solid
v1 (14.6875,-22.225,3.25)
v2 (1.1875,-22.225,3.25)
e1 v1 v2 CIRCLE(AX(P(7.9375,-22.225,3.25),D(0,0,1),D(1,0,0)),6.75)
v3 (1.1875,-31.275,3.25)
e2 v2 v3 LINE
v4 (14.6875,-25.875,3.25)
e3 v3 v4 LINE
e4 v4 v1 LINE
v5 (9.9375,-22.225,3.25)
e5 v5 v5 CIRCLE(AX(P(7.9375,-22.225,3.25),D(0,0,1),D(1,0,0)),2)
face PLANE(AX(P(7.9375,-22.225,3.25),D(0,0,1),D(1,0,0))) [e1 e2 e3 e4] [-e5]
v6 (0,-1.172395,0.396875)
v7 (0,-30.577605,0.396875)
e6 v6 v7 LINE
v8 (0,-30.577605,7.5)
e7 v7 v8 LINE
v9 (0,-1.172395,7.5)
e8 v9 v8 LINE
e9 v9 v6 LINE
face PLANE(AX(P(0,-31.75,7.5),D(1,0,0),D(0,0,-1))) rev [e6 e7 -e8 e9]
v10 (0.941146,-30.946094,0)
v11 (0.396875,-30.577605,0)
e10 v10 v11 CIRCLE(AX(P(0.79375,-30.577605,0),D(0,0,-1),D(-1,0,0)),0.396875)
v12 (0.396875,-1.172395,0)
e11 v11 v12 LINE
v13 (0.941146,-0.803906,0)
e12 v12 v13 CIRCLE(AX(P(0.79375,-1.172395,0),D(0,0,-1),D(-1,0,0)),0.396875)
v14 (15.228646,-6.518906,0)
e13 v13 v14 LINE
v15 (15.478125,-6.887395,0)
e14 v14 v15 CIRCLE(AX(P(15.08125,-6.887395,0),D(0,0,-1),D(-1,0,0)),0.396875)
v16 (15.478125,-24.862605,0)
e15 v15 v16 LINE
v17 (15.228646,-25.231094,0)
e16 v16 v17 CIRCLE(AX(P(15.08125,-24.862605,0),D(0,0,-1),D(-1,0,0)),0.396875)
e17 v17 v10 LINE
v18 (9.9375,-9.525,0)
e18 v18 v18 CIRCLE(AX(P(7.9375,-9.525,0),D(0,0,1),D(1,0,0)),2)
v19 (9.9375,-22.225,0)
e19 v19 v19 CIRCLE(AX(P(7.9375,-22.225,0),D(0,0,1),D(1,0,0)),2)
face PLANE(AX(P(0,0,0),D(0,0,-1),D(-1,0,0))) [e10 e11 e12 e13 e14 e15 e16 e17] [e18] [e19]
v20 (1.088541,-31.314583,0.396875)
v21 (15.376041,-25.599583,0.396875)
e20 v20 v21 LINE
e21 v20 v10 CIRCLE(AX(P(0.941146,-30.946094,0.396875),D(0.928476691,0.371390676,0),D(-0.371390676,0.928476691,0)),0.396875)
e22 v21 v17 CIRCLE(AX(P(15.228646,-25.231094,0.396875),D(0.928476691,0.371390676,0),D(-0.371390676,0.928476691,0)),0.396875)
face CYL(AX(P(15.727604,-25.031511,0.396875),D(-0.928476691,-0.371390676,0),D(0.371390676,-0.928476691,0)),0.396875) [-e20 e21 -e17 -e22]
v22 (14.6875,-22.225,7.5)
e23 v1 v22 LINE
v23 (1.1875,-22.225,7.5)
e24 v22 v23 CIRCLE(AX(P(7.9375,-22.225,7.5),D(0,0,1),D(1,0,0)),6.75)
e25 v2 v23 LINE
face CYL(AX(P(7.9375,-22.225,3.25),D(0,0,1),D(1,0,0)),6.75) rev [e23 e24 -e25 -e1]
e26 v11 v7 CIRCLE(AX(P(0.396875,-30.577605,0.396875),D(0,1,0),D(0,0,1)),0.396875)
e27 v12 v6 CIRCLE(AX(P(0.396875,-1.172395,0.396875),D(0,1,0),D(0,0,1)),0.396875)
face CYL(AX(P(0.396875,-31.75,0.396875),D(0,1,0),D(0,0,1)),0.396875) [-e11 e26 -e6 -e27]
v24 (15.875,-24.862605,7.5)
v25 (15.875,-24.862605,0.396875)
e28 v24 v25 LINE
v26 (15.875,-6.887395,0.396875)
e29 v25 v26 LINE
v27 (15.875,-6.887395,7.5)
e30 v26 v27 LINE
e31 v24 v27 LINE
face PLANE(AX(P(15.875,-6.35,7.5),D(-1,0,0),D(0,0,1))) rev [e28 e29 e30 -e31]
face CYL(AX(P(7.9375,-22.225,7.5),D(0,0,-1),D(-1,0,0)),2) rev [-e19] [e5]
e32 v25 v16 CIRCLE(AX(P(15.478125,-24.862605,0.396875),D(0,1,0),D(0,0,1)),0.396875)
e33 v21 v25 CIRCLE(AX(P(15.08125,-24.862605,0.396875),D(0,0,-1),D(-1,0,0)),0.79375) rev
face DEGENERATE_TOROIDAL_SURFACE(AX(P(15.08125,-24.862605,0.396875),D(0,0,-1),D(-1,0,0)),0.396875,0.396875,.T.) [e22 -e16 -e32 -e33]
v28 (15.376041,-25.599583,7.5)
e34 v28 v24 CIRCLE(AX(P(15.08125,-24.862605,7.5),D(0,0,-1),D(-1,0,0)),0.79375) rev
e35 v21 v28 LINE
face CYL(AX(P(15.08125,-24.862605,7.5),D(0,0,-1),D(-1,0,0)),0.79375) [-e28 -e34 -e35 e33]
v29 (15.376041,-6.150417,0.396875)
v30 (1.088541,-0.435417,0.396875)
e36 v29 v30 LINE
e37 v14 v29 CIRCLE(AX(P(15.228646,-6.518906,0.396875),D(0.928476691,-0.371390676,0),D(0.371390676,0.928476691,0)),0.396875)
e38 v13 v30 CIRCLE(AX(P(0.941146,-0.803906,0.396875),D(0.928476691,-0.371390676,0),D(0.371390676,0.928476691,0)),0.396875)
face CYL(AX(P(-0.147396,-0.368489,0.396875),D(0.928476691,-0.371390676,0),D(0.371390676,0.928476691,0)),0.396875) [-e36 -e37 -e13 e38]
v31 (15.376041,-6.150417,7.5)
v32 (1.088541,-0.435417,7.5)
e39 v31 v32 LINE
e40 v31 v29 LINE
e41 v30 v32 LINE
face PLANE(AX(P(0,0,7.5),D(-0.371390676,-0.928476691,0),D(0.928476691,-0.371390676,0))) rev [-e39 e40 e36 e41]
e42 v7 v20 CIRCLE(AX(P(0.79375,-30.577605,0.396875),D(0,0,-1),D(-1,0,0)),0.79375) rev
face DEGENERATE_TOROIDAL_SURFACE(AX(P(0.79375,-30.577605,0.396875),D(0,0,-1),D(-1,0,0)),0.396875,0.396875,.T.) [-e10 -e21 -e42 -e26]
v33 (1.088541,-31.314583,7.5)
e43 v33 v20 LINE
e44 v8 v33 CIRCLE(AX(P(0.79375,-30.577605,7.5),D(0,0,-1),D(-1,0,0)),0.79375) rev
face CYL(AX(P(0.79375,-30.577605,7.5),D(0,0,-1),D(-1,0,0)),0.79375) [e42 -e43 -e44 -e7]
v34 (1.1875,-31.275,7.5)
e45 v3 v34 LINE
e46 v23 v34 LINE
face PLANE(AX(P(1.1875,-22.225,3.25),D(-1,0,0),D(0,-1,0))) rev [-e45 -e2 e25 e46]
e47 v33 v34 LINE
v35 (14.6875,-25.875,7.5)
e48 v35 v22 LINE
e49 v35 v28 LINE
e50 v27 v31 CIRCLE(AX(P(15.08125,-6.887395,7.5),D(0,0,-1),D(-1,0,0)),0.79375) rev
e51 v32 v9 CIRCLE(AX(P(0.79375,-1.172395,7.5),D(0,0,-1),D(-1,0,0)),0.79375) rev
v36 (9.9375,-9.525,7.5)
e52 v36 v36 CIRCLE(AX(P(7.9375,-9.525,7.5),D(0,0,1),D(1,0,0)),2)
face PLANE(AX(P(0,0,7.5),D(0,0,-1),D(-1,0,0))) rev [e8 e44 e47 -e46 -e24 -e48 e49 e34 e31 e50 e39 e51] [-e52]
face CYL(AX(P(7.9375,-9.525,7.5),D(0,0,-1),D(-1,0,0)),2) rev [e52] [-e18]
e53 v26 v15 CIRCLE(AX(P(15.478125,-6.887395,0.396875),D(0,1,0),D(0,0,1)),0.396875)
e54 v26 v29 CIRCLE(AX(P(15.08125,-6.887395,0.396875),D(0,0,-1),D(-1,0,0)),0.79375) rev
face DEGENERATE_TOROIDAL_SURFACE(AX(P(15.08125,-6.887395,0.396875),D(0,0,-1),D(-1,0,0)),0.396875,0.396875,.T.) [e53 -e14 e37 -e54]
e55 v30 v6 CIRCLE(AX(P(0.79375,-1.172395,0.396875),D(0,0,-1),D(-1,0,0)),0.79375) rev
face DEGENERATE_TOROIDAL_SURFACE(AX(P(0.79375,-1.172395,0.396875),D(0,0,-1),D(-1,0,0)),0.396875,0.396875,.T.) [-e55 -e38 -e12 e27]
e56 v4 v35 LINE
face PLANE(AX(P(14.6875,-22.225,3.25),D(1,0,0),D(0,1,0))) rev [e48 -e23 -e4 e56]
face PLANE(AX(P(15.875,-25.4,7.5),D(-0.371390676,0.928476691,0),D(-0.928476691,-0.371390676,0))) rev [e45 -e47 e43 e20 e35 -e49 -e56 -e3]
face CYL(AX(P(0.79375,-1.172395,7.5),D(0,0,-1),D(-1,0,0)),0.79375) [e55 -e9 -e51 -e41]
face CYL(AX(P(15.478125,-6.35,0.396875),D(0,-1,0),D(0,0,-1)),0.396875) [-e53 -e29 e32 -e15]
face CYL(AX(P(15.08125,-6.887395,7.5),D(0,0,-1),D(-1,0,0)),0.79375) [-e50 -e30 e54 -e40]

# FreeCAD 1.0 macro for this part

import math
import FreeCAD as App
import Part
import Sketcher

V = App.Vector
Q = App.Units.Quantity


def edges_at(feature, points):
    """Names of the edges that pass closest to the given points."""
    edges = feature.Shape.Edges
    near = lambda p: min(range(len(edges)), key=lambda i: edges[i].distToShape(Part.Vertex(*p))[0])
    return sorted({f"Edge{near(p) + 1}" for p in points})


def add_polygon(sketch, points):
    """Adds a closed chain of lines whose ends are joined by coincident constraints."""
    first, n = sketch.GeometryCount, len(points)
    for a, b in zip(points, points[1:] + points[:1]):
        sketch.addGeometry(Part.LineSegment(App.Vector(*a, 0), App.Vector(*b, 0)), False)
    for i in range(n):
        sketch.addConstraint(Sketcher.Constraint("Coincident", first + i, 2, first + (i + 1) % n, 1))

doc = App.newDocument("Part")
params = doc.addObject("Spreadsheet::Sheet", "Params")
for row, (alias, value) in enumerate([
    ("sketch1_height", "1.25 in"),
    ("pad1_length", "7.5 mm"),
    ("fillet_radius", "0.03125 in"),
    ("pocket1_length", "4.25 mm"),
    ("fillet2_radius", "0.015625 in"),
], start=1):
    params.set(f"A{row}", alias)
    params.set(f"B{row}", "=" + value)
    params.setAlias(f"B{row}", alias)

body = doc.addObject("PartDesign::Body", "Body")

# Sketch on XY plane
sketch1 = doc.addObject("Sketcher::SketchObject", "Sketch")
body.addObject(sketch1)
sketch1.AttachmentSupport = (doc.XY_Plane, [""])
sketch1.MapMode = "FlatFace"
add_polygon(sketch1, [(15.9, -6.3), (0, 0), (0, -31.8), (15.9, -25.4)])  # lines 0-3
sketch1.addGeometry(Part.Circle(V(7.9, -22.2, 0), V(0, 0, 1), 2), False)  # 4
sketch1.addGeometry(Part.Circle(V(7.9, -9.5, 0), V(0, 0, 1), 2), False)  # 5
sketch1.addConstraint([
    Sketcher.Constraint("Vertical", 1),
    Sketcher.Constraint("Vertical", 3),
    Sketcher.Constraint("Coincident", 0, 2, -1, 1),
    Sketcher.Constraint("Equal", 4, 5),
    Sketcher.Constraint("Vertical", 4, 3, 5, 3),
    Sketcher.Constraint("Equal", 0, 2),
    Sketcher.Constraint("DistanceY", 2, 2, -1, 1, Q("1 in")),
    Sketcher.Constraint("DistanceY", 1, 2, 1, 1, Q("1.25 in")),
    Sketcher.Constraint("DistanceY", 4, 3, 5, 3, Q("0.5 in")),
    Sketcher.Constraint("Diameter", 4, Q("4 mm")),
    Sketcher.Constraint("DistanceX", -1, 1, 4, 3, Q("0.3125 in")),
    Sketcher.Constraint("DistanceY", 4, 3, -1, 1, Q("0.875 in")),
    Sketcher.Constraint("DistanceX", -1, 1, 2, 2, Q("0.625 in")),
])
sketch1.setExpression("Constraints[11]", "Params.sketch1_height")
pad1 = doc.addObject("PartDesign::Pad", "Pad")
body.addObject(pad1)
pad1.Profile = sketch1
pad1.setExpression("Length", "Params.pad1_length")
doc.recompute()

fillet = doc.addObject("PartDesign::Fillet", "Fillet")
body.addObject(fillet)
fillet.Base = (pad1, edges_at(pad1, [
    (0, 0, 3.75),
    (15.875, -6.35, 3.75),
    (15.875, -25.4, 3.75),
    (0, -31.75, 3.75),
]))
fillet.setExpression("Radius", "Params.fillet_radius")

# Sketch on XY plane
sketch2 = doc.addObject("Sketcher::SketchObject", "Sketch001")
body.addObject(sketch2)
sketch2.AttachmentSupport = (doc.XY_Plane, [""])
sketch2.MapMode = "FlatFace"
sketch2.AttachmentOffset = App.Placement(V(0, 0, 7.5), App.Rotation())
sketch2.addGeometry([
    Part.LineSegment(V(14.7, -25.9, 0), V(14.7, -22.2, 0)),
    Part.ArcOfCircle(Part.Circle(V(7.9, -22.2, 0), V(0, 0, 1), 6.8), math.radians(0), math.radians(180)),
    Part.LineSegment(V(1.2, -22.2, 0), V(1.2, -31.3, 0)),
    Part.LineSegment(V(1.2, -31.3, 0), V(14.7, -25.9, 0)),
], False)
sketch2.addConstraint([
    Sketcher.Constraint("Tangent", 0, 2, 1, 1),
    Sketcher.Constraint("Tangent", 1, 2, 2, 1),
    Sketcher.Constraint("Coincident", 2, 2, 3, 1),
    Sketcher.Constraint("Coincident", 3, 2, 0, 1),
    Sketcher.Constraint("Vertical", 0),
    Sketcher.Constraint("Vertical", 2),
    Sketcher.Constraint("Radius", 1, Q("6.75 mm")),
    Sketcher.Constraint("DistanceX", -1, 1, 1, 3, Q("0.3125 in")),
    Sketcher.Constraint("DistanceY", 1, 3, -1, 1, Q("0.875 in")),
    Sketcher.Constraint("DistanceY", 0, 1, 0, 2, Q("3.65 mm")),
    Sketcher.Constraint("DistanceY", 2, 2, 2, 1, Q("9.05 mm")),
])
pocket1 = doc.addObject("PartDesign::Pocket", "Pocket")
body.addObject(pocket1)
pocket1.Profile = sketch2
pocket1.setExpression("Length", "Params.pocket1_length")
doc.recompute()

fillet2 = doc.addObject("PartDesign::Fillet", "Fillet001")
body.addObject(fillet2)
fillet2.Base = (pocket1, edges_at(pocket1, [
    (8.232, -28.457, 0),
    (0, -15.875, 0),
    (8.232, -3.293, 0),
    (15.875, -15.875, 0),
    (0.349, -0.515, 0),
    (15.739, -6.442, 0),
    (15.739, -25.308, 0),
    (0.349, -31.235, 0),
]))
fillet2.setExpression("Radius", "Params.fillet2_radius")

doc.recompute()
